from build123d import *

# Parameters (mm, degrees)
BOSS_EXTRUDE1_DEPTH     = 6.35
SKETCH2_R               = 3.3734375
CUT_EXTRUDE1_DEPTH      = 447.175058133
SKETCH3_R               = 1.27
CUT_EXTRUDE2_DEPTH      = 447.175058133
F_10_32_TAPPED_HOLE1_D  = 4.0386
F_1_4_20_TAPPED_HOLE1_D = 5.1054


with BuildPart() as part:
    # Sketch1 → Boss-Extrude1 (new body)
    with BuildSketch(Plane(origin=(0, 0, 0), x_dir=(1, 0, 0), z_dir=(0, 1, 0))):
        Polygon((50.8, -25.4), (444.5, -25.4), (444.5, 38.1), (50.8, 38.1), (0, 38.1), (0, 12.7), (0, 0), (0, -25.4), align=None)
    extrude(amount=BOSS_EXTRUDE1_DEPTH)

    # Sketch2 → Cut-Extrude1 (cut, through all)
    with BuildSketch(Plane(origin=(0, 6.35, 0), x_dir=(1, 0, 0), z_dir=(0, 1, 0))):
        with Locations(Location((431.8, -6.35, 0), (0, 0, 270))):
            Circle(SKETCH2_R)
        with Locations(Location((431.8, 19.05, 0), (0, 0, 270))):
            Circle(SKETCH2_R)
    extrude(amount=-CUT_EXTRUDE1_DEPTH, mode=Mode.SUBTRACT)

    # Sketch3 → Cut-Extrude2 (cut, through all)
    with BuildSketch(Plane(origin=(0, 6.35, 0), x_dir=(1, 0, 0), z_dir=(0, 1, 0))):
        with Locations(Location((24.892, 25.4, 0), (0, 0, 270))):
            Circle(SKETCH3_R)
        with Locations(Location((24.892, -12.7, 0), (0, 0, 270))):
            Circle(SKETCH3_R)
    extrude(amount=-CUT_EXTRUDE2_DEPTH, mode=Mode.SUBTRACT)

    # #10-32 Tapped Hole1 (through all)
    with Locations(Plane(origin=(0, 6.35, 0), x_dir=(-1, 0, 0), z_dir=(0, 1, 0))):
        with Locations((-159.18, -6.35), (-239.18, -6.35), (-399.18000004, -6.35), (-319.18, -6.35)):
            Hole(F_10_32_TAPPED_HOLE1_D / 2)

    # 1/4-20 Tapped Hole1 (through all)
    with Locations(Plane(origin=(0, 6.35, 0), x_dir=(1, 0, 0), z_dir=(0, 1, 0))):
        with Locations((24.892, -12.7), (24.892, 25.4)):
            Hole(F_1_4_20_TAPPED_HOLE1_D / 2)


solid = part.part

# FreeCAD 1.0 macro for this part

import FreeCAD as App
import Part
import Sketcher
from FreeCAD import Vector
Q = App.Units.Quantity


def add_polygon(sketch, points):
    """Adds a closed chain of lines whose ends are joined by coincident constraints."""
    first, n = sketch.GeometryCount, len(points)
    for a, b in zip(points, points[1:] + points[:1]):
        sketch.addGeometry(Part.LineSegment(App.Vector(*a, 0), App.Vector(*b, 0)), False)
    for i in range(n):
        sketch.addConstraint(Sketcher.Constraint("Coincident", first + i, 2, first + (i + 1) % n, 1))

doc = App.newDocument("Part")
body = doc.addObject("PartDesign::Body", "Body")

# Sketch on XZ plane
sketch1 = body.newObject("Sketcher::SketchObject", "Sketch")
sketch1.AttachmentSupport = (doc.getObject("XZ_Plane"), [""])
sketch1.MapMode = "FlatFace"
add_polygon(sketch1, [(444.5, 25.4), (444.5, -38.1), (0, -38.1), (0, 25.4)])  # lines 0-3
sketch1.addConstraint([
    Sketcher.Constraint("Vertical", 0),
    Sketcher.Constraint("Horizontal", 1),
    Sketcher.Constraint("Vertical", 2),
    Sketcher.Constraint("Horizontal", 3),
    Sketcher.Constraint("PointOnObject", 1, 2, -2),
    Sketcher.Constraint("DistanceX", 1, 2, 1, 1, Q("17.5 in")),
    Sketcher.Constraint("DistanceY", 0, 2, 0, 1, Q("2.5 in")),
    Sketcher.Constraint("DistanceY", -1, 1, 2, 2, Q("1 in")),
])
pad1 = body.newObject("PartDesign::Pad", "Pad")
pad1.Profile = sketch1
pad1.Length = Q("0.25 in")
pad1.Reversed = True

# Sketch on XZ plane
sketch2 = body.newObject("Sketcher::SketchObject", "Sketch001")
sketch2.AttachmentSupport = (doc.getObject("XZ_Plane"), [""])
sketch2.MapMode = "FlatFace"
sketch2.AttachmentOffset = App.Placement(Vector(0, 0, -0.25 * 25.4), App.Rotation())
sketch2.addGeometry([
    Part.Circle(Vector(431.8, 6.35, 0), Vector(0, 0, 1), 3.373438),
    Part.Circle(Vector(431.8, -19.05, 0), Vector(0, 0, 1), 3.373438),
], False)
sketch2.addConstraint([
    Sketcher.Constraint("Equal", 0, 1),
    Sketcher.Constraint("Vertical", 0, 3, 1, 3),
    Sketcher.Constraint("Diameter", 0, Q("0.265625 in")),
    Sketcher.Constraint("DistanceX", -1, 1, 0, 3, Q("17 in")),
    Sketcher.Constraint("DistanceY", 1, 3, 0, 3, Q("1 in")),
    Sketcher.Constraint("DistanceY", -1, 1, 0, 3, Q("0.25 in")),
])
pocket1 = body.newObject("PartDesign::Pocket", "Pocket")
pocket1.Profile = sketch2
pocket1.Type = "ThroughAll"
pocket1.Reversed = True

# Sketch on XZ plane
sketch3 = body.newObject("Sketcher::SketchObject", "Sketch002")
sketch3.AttachmentSupport = (doc.getObject("XZ_Plane"), [""])
sketch3.MapMode = "FlatFace"
sketch3.AttachmentOffset = App.Placement(Vector(0, 0, -0.25 * 25.4), App.Rotation())
sketch3.addGeometry([
    Part.Circle(Vector(24.892, -25.4, 0), Vector(0, 0, 1), 1.27),
    Part.Circle(Vector(24.892, 12.7, 0), Vector(0, 0, 1), 1.27),
], False)
sketch3.addConstraint([
    Sketcher.Constraint("Equal", 0, 1),
    Sketcher.Constraint("Vertical", 0, 3, 1, 3),
    Sketcher.Constraint("Diameter", 0, Q("0.1 in")),
    Sketcher.Constraint("DistanceY", 0, 3, -1, 1, Q("1 in")),
    Sketcher.Constraint("DistanceY", -1, 1, 1, 3, Q("0.5 in")),
    Sketcher.Constraint("DistanceX", -1, 1, 0, 3, Q("0.98 in")),
])
pocket2 = body.newObject("PartDesign::Pocket", "Pocket001")
pocket2.Profile = sketch3
pocket2.Type = "ThroughAll"
pocket2.Reversed = True

# Sketch on XZ plane
sketch4 = body.newObject("Sketcher::SketchObject", "Sketch003")
sketch4.AttachmentSupport = (doc.getObject("XZ_Plane"), [""])
sketch4.MapMode = "FlatFace"
sketch4.AttachmentOffset = App.Placement(Vector(0, 0, -0.25 * 25.4), App.Rotation())
sketch4.addGeometry([
    Part.Circle(Vector(159.18, -6.35, 0), Vector(0, 0, 1), 2.0193),
    Part.Circle(Vector(239.18, -6.35, 0), Vector(0, 0, 1), 2.0193),
    Part.Circle(Vector(399.18, -6.35, 0), Vector(0, 0, 1), 2.0193),
    Part.Circle(Vector(319.18, -6.35, 0), Vector(0, 0, 1), 2.0193),
], False)
sketch4.addConstraint([
    Sketcher.Constraint("Equal", 0, 1),
    Sketcher.Constraint("Equal", 1, 2),
    Sketcher.Constraint("Equal", 2, 3),
    Sketcher.Constraint("Horizontal", 0, 3, 1, 3),
    Sketcher.Constraint("Horizontal", 1, 3, 2, 3),
    Sketcher.Constraint("Horizontal", 2, 3, 3, 3),
    Sketcher.Constraint("Diameter", 0, Q("0.159 in")),
    Sketcher.Constraint("DistanceY", 0, 3, -1, 1, Q("0.25 in")),
    Sketcher.Constraint("DistanceX", -1, 1, 0, 3, Q("159.18 mm")),
    Sketcher.Constraint("DistanceX", -1, 1, 1, 3, Q("239.18 mm")),
    Sketcher.Constraint("DistanceX", -1, 1, 2, 3, Q("399.18 mm")),
    Sketcher.Constraint("DistanceX", -1, 1, 3, 3, Q("319.18 mm")),
])
doc.recompute()
hole = body.newObject("PartDesign::Hole", "Hole")
hole.Profile = sketch4
hole.ThreadType = "None"
hole.Diameter = Q("0.159 in")
hole.DepthType = "ThroughAll"
hole.Reversed = True

# Sketch on XZ plane
sketch5 = body.newObject("Sketcher::SketchObject", "Sketch004")
sketch5.AttachmentSupport = (doc.getObject("XZ_Plane"), [""])
sketch5.MapMode = "FlatFace"
sketch5.AttachmentOffset = App.Placement(Vector(0, 0, -0.25 * 25.4), App.Rotation())
sketch5.addGeometry([
    Part.Circle(Vector(24.892, 12.7, 0), Vector(0, 0, 1), 2.5527),
    Part.Circle(Vector(24.892, -25.4, 0), Vector(0, 0, 1), 2.5527),
], False)
sketch5.addConstraint([
    Sketcher.Constraint("Equal", 0, 1),
    Sketcher.Constraint("Vertical", 0, 3, 1, 3),
    Sketcher.Constraint("Diameter", 0, Q("0.201 in")),
    Sketcher.Constraint("DistanceY", 1, 3, -1, 1, Q("1 in")),
    Sketcher.Constraint("DistanceY", -1, 1, 0, 3, Q("0.5 in")),
    Sketcher.Constraint("DistanceX", -1, 1, 0, 3, Q("0.98 in")),
])
doc.recompute()
hole2 = body.newObject("PartDesign::Hole", "Hole001")
hole2.Profile = sketch5
hole2.ThreadType = "None"
hole2.Diameter = Q("0.201 in")
hole2.DepthType = "ThroughAll"
hole2.Reversed = True

doc.recompute()
